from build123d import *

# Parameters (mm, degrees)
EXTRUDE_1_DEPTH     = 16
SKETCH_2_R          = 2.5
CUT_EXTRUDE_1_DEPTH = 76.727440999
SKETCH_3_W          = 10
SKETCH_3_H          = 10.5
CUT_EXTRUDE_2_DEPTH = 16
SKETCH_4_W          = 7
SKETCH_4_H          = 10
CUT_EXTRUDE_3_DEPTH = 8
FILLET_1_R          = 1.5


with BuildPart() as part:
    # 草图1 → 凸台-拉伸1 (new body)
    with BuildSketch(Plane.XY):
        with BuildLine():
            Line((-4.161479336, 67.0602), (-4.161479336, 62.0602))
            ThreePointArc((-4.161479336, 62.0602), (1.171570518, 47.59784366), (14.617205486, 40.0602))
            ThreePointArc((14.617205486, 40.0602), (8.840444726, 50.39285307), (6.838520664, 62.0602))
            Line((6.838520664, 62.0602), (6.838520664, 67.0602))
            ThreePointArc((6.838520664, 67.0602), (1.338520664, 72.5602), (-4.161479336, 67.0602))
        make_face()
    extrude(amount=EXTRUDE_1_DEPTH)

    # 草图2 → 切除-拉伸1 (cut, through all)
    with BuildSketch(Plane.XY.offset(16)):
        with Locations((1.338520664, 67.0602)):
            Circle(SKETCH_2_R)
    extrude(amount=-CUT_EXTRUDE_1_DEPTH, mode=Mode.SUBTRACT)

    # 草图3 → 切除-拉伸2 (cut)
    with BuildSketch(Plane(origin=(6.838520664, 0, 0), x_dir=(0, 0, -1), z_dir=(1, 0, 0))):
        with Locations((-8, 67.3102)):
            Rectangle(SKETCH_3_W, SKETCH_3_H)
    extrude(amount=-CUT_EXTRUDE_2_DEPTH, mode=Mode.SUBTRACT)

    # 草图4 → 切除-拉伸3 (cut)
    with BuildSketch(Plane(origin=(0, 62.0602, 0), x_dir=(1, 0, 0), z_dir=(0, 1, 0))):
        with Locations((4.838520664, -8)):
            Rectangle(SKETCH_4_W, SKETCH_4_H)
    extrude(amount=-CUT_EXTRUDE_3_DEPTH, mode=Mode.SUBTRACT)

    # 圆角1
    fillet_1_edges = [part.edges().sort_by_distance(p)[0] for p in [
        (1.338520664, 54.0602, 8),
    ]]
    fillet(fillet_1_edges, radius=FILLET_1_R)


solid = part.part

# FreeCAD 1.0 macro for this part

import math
import FreeCAD as App
import Part
import Sketcher
Q = App.Units.Quantity


def edges_at(feature, points):
    """Names of the edges that pass closest to the given points."""
    edges = feature.Shape.Edges
    near = lambda p: min(range(len(edges)), key=lambda i: edges[i].distToShape(Part.Vertex(*p))[0])
    return sorted({f"Edge{near(p) + 1}" for p in points})

doc = App.newDocument("Part")
params = doc.addObject("Spreadsheet::Sheet", "Params")
for row, (alias, value) in enumerate([
    ("sketch1_radius", "35 mm"),
    ("sketch1_radius2", "5.5 mm"),
    ("sketch1_height", "5 mm"),
    ("sketch1_height2", "22 mm"),
    ("pad1_length", "16 mm"),
    ("sketch2_diameter", "5 mm"),
    ("sketch3_height", "10 mm"),
    ("sketch3_width", "10.5 mm"),
    ("pocket2_length", "16 mm"),
    ("sketch4_width", "7 mm"),
    ("sketch4_height", "10 mm"),
    ("pocket3_length", "8 mm"),
    ("fillet_radius", "1.5 mm"),
], start=1):
    params.set(f"A{row}", alias)
    params.set(f"B{row}", "=" + value)
    params.setAlias(f"B{row}", alias)

body = doc.addObject("PartDesign::Body", "Body")

# Sketch on XY plane
sketch1 = body.newObject("Sketcher::SketchObject", "Sketch")
sketch1.AttachmentSupport = (doc.getObject("XY_Plane"), [""])
sketch1.MapMode = "FlatFace"
sketch1.addGeometry([
    Part.LineSegment(App.Vector(-4.2, 67.1, 0), App.Vector(-4.2, 62.1, 0)),  # 0
    Part.ArcOfCircle(Part.Circle(App.Vector(18.1, 62.1, 0), App.Vector(0, 0, 1), 22.3), math.radians(-180), math.radians(-99)),  # 1
    Part.ArcOfCircle(Part.Circle(App.Vector(41.8, 62.1, 0), App.Vector(0, 0, 1), 35), math.radians(-180), math.radians(-141)),  # 2
    Part.LineSegment(App.Vector(6.8, 62.1, 0), App.Vector(6.8, 67.1, 0)),  # 3
    Part.ArcOfCircle(Part.Circle(App.Vector(1.3, 67.1, 0), App.Vector(0, 0, 1), 5.5), math.radians(0), math.radians(180)),  # 4
], False)
sketch1.addConstraint([
    Sketcher.Constraint("Tangent", 0, 2, 1, 1),
    Sketcher.Constraint("Coincident", 1, 2, 2, 2),
    Sketcher.Constraint("Tangent", 2, 1, 3, 1),
    Sketcher.Constraint("Tangent", 3, 2, 4, 1),
    Sketcher.Constraint("Tangent", 4, 2, 0, 1),
    Sketcher.Constraint("Vertical", 0),
    Sketcher.Constraint("Vertical", 3),
    Sketcher.Constraint("Horizontal", 1, 3, 2, 3),
    Sketcher.Constraint("Radius", 2, Q("35 mm")),
    Sketcher.Constraint("Radius", 4, Q("5.5 mm")),
    Sketcher.Constraint("DistanceY", 0, 2, 0, 1, Q("5 mm")),
    Sketcher.Constraint("DistanceY", 1, 2, 1, 3, Q("22 mm")),
    Sketcher.Constraint("DistanceY", -1, 1, 1, 3, Q("62.0602 mm")),
    Sketcher.Constraint("DistanceX", -1, 1, 2, 3, Q("41.838521 mm")),
])
sketch1.setExpression("Constraints[8]", "Params.sketch1_radius")
sketch1.setExpression("Constraints[9]", "Params.sketch1_radius2")
sketch1.setExpression("Constraints[10]", "Params.sketch1_height")
sketch1.setExpression("Constraints[11]", "Params.sketch1_height2")
pad1 = body.newObject("PartDesign::Pad", "Pad")
pad1.Profile = sketch1
pad1.setExpression("Length", "Params.pad1_length")

# Sketch on XY plane
sketch2 = body.newObject("Sketcher::SketchObject", "Sketch001")
sketch2.AttachmentSupport = (doc.getObject("XY_Plane"), [""])
sketch2.MapMode = "FlatFace"
sketch2.AttachmentOffset = App.Placement(App.Vector(0, 0, 16), App.Rotation())
sketch2.addGeometry(Part.Circle(App.Vector(1.3, 67.1, 0), App.Vector(0, 0, 1), 2.5), False)
sketch2.addConstraint([
    Sketcher.Constraint("Diameter", 0, Q("5 mm")),
    Sketcher.Constraint("DistanceY", -1, 1, 0, 3, Q("67.0602 mm")),
    Sketcher.Constraint("DistanceX", -1, 1, 0, 3, Q("1.338521 mm")),
])
sketch2.setExpression("Constraints[0]", "Params.sketch2_diameter")
pocket1 = body.newObject("PartDesign::Pocket", "Pocket")
pocket1.Profile = sketch2
pocket1.Type = "ThroughAll"

# Sketch on YZ plane
sketch3 = body.newObject("Sketcher::SketchObject", "Sketch002")
sketch3.AttachmentSupport = (doc.getObject("YZ_Plane"), [""])
sketch3.MapMode = "FlatFace"
sketch3.AttachmentOffset = App.Placement(App.Vector(0, 0, 6.838521), App.Rotation())
sketch3.addGeometry([
    Part.LineSegment(App.Vector(73, 13, 0), App.Vector(62, 13, 0)),
    Part.LineSegment(App.Vector(62, 13, 0), App.Vector(62, 3, 0)),
    Part.LineSegment(App.Vector(62, 3, 0), App.Vector(73, 3, 0)),
    Part.LineSegment(App.Vector(73, 3, 0), App.Vector(73, 13, 0)),
], False)
sketch3.addConstraint([
    Sketcher.Constraint("Coincident", 0, 2, 1, 1),
    Sketcher.Constraint("Coincident", 1, 2, 2, 1),
    Sketcher.Constraint("Coincident", 2, 2, 3, 1),
    Sketcher.Constraint("Coincident", 3, 2, 0, 1),
    Sketcher.Constraint("Horizontal", 0),
    Sketcher.Constraint("Vertical", 1),
    Sketcher.Constraint("Horizontal", 2),
    Sketcher.Constraint("Vertical", 3),
    Sketcher.Constraint("DistanceY", 1, 2, 1, 1, Q("10 mm")),
    Sketcher.Constraint("DistanceX", 0, 2, 0, 1, Q("10.5 mm")),
    Sketcher.Constraint("DistanceY", -1, 1, 0, 2, Q("13 mm")),
    Sketcher.Constraint("DistanceX", -1, 1, 0, 2, Q("62.0602 mm")),
])
sketch3.setExpression("Constraints[8]", "Params.sketch3_height")
sketch3.setExpression("Constraints[9]", "Params.sketch3_width")
pocket2 = body.newObject("PartDesign::Pocket", "Pocket001")
pocket2.Profile = sketch3
pocket2.setExpression("Length", "Params.pocket2_length")

# Sketch on XZ plane
sketch4 = body.newObject("Sketcher::SketchObject", "Sketch003")
sketch4.AttachmentSupport = (doc.getObject("XZ_Plane"), [""])
sketch4.MapMode = "FlatFace"
sketch4.AttachmentOffset = App.Placement(App.Vector(0, 0, -62.0602), App.Rotation())
sketch4.addGeometry([
    Part.LineSegment(App.Vector(1, 3, 0), App.Vector(1, 13, 0)),
    Part.LineSegment(App.Vector(1, 13, 0), App.Vector(8, 13, 0)),
    Part.LineSegment(App.Vector(8, 13, 0), App.Vector(8, 3, 0)),
    Part.LineSegment(App.Vector(8, 3, 0), App.Vector(1, 3, 0)),
], False)
sketch4.addConstraint([
    Sketcher.Constraint("Coincident", 0, 2, 1, 1),
    Sketcher.Constraint("Coincident", 1, 2, 2, 1),
    Sketcher.Constraint("Coincident", 2, 2, 3, 1),
    Sketcher.Constraint("Coincident", 3, 2, 0, 1),
    Sketcher.Constraint("Vertical", 0),
    Sketcher.Constraint("Horizontal", 1),
    Sketcher.Constraint("Vertical", 2),
    Sketcher.Constraint("Horizontal", 3),
    Sketcher.Constraint("DistanceX", 1, 1, 1, 2, Q("7 mm")),
    Sketcher.Constraint("DistanceY", 0, 1, 0, 2, Q("10 mm")),
    Sketcher.Constraint("DistanceY", -1, 1, 0, 2, Q("13 mm")),
    Sketcher.Constraint("DistanceX", -1, 1, 0, 2, Q("1.338521 mm")),
])
sketch4.setExpression("Constraints[8]", "Params.sketch4_width")
sketch4.setExpression("Constraints[9]", "Params.sketch4_height")
pocket3 = body.newObject("PartDesign::Pocket", "Pocket002")
pocket3.Profile = sketch4
pocket3.setExpression("Length", "Params.pocket3_length")
pocket3.Reversed = True
doc.recompute()

fillet = body.newObject("PartDesign::Fillet", "Fillet")
fillet.Base = (pocket3, edges_at(pocket3, [(1.339, 54.06, 8)]))
fillet.setExpression("Radius", "Params.fillet_radius")

doc.recompute()
